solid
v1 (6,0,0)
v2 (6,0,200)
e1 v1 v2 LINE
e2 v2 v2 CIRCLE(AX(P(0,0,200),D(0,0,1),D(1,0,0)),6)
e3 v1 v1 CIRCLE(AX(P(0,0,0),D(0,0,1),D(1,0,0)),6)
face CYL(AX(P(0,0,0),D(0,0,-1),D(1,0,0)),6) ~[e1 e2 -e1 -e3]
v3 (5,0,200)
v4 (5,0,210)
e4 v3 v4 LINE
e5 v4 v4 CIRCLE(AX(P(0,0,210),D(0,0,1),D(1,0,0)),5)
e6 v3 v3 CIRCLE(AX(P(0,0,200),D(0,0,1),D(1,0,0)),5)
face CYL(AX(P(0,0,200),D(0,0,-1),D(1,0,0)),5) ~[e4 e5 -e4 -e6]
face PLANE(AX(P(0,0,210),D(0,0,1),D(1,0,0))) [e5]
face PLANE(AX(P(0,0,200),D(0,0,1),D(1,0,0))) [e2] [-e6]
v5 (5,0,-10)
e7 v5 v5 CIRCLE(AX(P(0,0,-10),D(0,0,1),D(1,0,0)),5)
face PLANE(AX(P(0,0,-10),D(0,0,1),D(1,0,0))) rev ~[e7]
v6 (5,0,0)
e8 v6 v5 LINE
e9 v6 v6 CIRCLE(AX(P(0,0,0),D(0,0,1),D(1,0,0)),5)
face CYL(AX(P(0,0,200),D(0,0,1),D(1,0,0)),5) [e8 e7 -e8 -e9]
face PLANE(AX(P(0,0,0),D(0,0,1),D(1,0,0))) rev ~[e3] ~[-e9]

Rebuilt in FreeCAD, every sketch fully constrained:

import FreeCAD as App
import Part
import Sketcher
from FreeCAD import Vector
Q = App.Units.Quantity

doc = App.newDocument("Part")
params = doc.addObject("Spreadsheet::Sheet", "Params")
for row, (alias, value) in enumerate([
    ("sketch1_diameter", "12 mm"),
    ("pad1_length", "200 mm"),
    ("sketch2_diameter", "10 mm"),
    ("pad2_length", "10 mm"),
    ("sketch3_diameter", "10 mm"),
    ("pad3_length", "210 mm"),
], start=1):
    params.set(f"A{row}", alias)
    params.set(f"B{row}", "=" + value)
    params.setAlias(f"B{row}", alias)

body = doc.addObject("PartDesign::Body", "Body")

sketch1 = body.newObject("Sketcher::SketchObject", "Sketch")
sketch1.AttachmentSupport = (doc.getObject("XY_Plane"), [""])
sketch1.MapMode = "FlatFace"
sketch1.addGeometry(Part.Circle(Vector(0, 0, 0), Vector(0, 0, 1), 6), False)
sketch1.addConstraint([
    Sketcher.Constraint("Coincident", 0, 3, -1, 1),
    Sketcher.Constraint("Diameter", 0, Q("12 mm")),
])
sketch1.setExpression("Constraints[1]", "Params.sketch1_diameter")
pad1 = body.newObject("PartDesign::Pad", "Pad")
pad1.Profile = sketch1
pad1.setExpression("Length", "Params.pad1_length")

sketch2 = body.newObject("Sketcher::SketchObject", "Sketch001")
sketch2.AttachmentSupport = (doc.getObject("XY_Plane"), [""])
sketch2.MapMode = "FlatFace"
sketch2.AttachmentOffset = App.Placement(Vector(0, 0, 200), App.Rotation())
sketch2.addGeometry(Part.Circle(Vector(0, 0, 0), Vector(0, 0, 1), 5), False)
sketch2.addConstraint([
    Sketcher.Constraint("Coincident", 0, 3, -1, 1),
    Sketcher.Constraint("Diameter", 0, Q("10 mm")),
])
sketch2.setExpression("Constraints[1]", "Params.sketch2_diameter")
pad2 = body.newObject("PartDesign::Pad", "Pad001")
pad2.Profile = sketch2
pad2.setExpression("Length", "Params.pad2_length")

sketch3 = body.newObject("Sketcher::SketchObject", "Sketch002")
sketch3.AttachmentSupport = (doc.getObject("XY_Plane"), [""])
sketch3.MapMode = "FlatFace"
sketch3.AttachmentOffset = App.Placement(Vector(0, 0, 200), App.Rotation())
sketch3.addGeometry(Part.Circle(Vector(0, 0, 0), Vector(0, 0, 1), 5), False)
sketch3.addConstraint([
    Sketcher.Constraint("Coincident", 0, 3, -1, 1),
    Sketcher.Constraint("Diameter", 0, Q("10 mm")),
])
sketch3.setExpression("Constraints[1]", "Params.sketch3_diameter")
pad3 = body.newObject("PartDesign::Pad", "Pad002")
pad3.Profile = sketch3
pad3.setExpression("Length", "Params.pad3_length")
pad3.Reversed = True

doc.recompute()
